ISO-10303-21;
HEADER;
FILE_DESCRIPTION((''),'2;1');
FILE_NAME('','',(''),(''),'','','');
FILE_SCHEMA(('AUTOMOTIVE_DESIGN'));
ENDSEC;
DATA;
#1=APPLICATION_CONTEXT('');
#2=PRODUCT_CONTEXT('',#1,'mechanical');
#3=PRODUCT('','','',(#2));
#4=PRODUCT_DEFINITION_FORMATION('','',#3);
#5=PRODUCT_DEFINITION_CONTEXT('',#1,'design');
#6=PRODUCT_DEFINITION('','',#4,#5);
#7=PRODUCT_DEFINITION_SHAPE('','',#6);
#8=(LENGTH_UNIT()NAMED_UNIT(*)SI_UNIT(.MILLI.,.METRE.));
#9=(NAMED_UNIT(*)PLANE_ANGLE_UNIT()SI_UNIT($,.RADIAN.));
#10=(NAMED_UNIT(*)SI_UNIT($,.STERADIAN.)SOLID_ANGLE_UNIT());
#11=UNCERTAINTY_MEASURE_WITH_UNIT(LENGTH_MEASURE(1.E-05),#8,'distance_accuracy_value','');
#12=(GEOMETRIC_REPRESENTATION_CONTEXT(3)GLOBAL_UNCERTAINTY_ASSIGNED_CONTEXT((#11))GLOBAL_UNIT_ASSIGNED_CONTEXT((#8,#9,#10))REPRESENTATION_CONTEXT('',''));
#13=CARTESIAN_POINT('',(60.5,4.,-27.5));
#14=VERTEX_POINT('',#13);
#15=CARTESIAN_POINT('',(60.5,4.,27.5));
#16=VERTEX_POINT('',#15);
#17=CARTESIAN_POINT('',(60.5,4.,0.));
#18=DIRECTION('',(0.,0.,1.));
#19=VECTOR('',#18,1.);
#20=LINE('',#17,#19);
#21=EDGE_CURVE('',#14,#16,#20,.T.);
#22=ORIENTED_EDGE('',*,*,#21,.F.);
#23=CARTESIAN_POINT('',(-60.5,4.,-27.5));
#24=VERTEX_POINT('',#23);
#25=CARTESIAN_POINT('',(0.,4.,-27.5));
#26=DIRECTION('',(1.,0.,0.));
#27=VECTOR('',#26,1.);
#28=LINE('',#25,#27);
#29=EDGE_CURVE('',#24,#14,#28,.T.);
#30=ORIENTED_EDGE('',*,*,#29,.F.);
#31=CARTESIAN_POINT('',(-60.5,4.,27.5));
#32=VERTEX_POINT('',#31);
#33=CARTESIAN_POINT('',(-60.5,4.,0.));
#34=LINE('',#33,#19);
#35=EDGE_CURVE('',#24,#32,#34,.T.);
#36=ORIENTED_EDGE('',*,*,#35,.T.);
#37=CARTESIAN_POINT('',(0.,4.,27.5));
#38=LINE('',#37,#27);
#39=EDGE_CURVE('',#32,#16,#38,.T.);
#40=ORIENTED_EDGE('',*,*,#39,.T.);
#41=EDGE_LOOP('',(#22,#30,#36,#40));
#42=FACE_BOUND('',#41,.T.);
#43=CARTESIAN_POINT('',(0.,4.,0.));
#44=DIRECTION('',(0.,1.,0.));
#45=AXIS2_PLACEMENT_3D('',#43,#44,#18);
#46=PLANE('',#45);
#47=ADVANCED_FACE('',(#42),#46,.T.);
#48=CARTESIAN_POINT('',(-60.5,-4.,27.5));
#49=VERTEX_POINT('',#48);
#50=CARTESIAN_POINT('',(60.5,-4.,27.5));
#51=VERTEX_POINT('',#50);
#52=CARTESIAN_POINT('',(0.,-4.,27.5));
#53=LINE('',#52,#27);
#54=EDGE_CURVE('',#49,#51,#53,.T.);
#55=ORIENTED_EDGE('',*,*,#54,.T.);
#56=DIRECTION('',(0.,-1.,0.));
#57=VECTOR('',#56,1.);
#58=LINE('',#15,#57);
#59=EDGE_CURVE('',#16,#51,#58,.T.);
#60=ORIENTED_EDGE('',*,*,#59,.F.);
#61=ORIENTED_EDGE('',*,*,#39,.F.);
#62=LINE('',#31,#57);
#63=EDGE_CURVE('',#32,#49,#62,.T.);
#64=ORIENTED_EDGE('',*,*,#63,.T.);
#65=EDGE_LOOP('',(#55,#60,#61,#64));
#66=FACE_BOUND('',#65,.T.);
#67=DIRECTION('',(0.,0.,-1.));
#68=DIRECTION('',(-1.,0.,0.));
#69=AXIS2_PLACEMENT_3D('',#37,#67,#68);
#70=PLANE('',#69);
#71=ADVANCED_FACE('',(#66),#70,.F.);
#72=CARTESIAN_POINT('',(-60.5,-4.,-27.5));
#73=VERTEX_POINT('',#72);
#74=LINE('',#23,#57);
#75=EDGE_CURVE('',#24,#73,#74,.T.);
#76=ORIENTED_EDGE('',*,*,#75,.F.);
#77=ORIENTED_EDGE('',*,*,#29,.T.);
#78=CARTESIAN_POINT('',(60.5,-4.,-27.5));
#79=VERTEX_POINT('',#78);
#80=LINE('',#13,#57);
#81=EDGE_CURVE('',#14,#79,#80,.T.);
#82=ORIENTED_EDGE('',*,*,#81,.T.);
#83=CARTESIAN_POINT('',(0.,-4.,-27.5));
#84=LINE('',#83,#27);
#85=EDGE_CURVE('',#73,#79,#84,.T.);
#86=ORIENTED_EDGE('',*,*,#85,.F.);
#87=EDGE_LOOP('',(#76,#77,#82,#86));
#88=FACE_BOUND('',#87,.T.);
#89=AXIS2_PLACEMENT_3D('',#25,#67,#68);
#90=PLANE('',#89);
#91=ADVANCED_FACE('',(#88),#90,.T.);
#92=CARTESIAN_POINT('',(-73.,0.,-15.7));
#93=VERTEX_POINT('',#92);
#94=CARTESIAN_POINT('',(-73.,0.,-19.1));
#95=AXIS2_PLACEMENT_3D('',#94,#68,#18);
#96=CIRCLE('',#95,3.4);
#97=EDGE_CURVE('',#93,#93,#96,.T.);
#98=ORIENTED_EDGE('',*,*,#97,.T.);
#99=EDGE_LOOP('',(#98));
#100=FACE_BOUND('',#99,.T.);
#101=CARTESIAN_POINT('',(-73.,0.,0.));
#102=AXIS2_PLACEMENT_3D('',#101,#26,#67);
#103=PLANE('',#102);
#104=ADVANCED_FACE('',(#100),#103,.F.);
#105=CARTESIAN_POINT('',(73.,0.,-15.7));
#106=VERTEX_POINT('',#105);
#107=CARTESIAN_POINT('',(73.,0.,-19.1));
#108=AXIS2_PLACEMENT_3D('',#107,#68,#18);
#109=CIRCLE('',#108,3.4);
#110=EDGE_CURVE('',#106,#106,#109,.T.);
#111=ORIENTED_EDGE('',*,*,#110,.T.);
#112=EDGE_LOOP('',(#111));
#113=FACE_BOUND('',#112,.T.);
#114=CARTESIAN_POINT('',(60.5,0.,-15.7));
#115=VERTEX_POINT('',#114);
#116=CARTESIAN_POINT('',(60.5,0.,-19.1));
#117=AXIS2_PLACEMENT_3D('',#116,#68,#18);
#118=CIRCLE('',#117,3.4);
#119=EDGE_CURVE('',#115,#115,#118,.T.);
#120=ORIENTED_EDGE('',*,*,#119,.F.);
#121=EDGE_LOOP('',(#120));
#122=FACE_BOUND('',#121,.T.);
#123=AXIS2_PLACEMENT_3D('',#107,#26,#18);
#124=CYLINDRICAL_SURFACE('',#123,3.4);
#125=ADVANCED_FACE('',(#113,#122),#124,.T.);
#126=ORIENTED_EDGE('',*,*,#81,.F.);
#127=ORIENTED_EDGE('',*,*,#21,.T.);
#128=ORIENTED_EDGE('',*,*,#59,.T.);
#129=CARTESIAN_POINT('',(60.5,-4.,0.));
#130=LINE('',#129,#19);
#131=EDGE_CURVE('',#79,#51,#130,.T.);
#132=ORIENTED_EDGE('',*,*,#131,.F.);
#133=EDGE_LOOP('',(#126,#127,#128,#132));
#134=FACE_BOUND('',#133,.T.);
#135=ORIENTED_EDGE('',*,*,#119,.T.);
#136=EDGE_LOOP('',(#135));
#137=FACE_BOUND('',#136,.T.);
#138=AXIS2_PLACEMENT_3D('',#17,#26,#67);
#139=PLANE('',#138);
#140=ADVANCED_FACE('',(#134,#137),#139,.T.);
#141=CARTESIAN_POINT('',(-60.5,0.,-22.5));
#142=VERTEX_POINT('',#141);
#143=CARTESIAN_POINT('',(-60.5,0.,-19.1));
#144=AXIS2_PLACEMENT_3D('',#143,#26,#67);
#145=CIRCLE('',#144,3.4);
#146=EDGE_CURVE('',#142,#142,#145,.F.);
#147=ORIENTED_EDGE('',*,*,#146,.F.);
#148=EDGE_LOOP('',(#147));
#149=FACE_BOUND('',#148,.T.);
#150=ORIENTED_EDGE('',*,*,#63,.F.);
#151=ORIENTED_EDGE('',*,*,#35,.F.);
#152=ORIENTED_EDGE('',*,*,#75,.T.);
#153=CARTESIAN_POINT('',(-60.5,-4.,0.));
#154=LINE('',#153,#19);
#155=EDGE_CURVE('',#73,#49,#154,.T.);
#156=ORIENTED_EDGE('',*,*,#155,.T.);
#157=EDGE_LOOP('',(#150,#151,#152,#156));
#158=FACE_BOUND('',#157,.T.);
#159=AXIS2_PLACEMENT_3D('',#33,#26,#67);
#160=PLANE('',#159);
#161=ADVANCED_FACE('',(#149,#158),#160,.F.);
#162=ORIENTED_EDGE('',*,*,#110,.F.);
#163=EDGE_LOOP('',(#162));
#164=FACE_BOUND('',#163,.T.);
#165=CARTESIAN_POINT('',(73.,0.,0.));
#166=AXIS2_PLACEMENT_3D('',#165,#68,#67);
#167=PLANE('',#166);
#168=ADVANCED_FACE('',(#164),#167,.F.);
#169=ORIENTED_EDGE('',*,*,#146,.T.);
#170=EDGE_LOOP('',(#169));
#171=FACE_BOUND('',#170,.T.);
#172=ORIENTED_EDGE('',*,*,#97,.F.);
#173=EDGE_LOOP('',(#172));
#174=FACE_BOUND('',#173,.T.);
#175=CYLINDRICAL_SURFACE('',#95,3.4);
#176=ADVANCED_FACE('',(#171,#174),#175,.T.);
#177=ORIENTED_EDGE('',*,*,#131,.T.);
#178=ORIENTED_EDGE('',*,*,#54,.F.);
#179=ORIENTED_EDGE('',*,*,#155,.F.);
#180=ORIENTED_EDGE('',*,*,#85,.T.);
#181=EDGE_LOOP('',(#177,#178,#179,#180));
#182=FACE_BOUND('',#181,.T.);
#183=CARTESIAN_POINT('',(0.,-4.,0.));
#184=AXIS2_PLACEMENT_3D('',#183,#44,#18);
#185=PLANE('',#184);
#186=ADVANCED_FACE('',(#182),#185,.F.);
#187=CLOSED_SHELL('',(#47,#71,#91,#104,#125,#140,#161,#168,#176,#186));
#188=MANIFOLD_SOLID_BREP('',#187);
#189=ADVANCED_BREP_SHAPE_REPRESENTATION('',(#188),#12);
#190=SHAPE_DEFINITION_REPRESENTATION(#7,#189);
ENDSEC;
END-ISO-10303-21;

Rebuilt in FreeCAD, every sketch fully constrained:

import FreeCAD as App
import Part
import Sketcher

V = App.Vector
Q = App.Units.Quantity

doc = App.newDocument("Part")
body = doc.addObject("PartDesign::Body", "Body")

# Sketch on XZ plane
sketch1 = body.newObject("Sketcher::SketchObject", "Sketch")
sketch1.AttachmentSupport = (doc.getObject("XZ_Plane"), [""])
sketch1.MapMode = "FlatFace"
sketch1.addGeometry([
    Part.LineSegment(V(-60.5, -27.5, 0), V(-60.5, 27.5, 0)),
    Part.LineSegment(V(-60.5, 27.5, 0), V(60.5, 27.5, 0)),
    Part.LineSegment(V(60.5, 27.5, 0), V(60.5, -27.5, 0)),
    Part.LineSegment(V(60.5, -27.5, 0), V(-60.5, -27.5, 0)),
], False)
sketch1.addConstraint([
    Sketcher.Constraint("Coincident", 0, 2, 1, 1),
    Sketcher.Constraint("Coincident", 1, 2, 2, 1),
    Sketcher.Constraint("Coincident", 2, 2, 3, 1),
    Sketcher.Constraint("Coincident", 3, 2, 0, 1),
    Sketcher.Constraint("Vertical", 0),
    Sketcher.Constraint("Horizontal", 1),
    Sketcher.Constraint("Vertical", 2),
    Sketcher.Constraint("Horizontal", 3),
    Sketcher.Constraint("Symmetric", 0, 2, 2, 2, -1, 1),
    Sketcher.Constraint("DistanceX", 1, 1, 1, 2, Q("121 mm")),
    Sketcher.Constraint("DistanceY", 0, 1, 0, 2, Q("55 mm")),
])
pad1 = body.newObject("PartDesign::Pad", "Pad")
pad1.Profile = sketch1
pad1.Length = 8
pad1.Midplane = True

# Sketch on XZ plane
sketch2 = body.newObject("Sketcher::SketchObject", "Sketch001")
sketch2.AttachmentSupport = (doc.getObject("XZ_Plane"), [""])
sketch2.MapMode = "FlatFace"
sketch2.addGeometry([
    Part.LineSegment(V(-73, -22.5, 0), V(-73, -19.1, 0)),
    Part.LineSegment(V(-73, -19.1, 0), V(-60.5, -19.1, 0)),
    Part.LineSegment(V(-60.5, -19.1, 0), V(-60.5, -22.5, 0)),
    Part.LineSegment(V(-60.5, -22.5, 0), V(-73, -22.5, 0)),
], False)
sketch2.addGeometry(Part.LineSegment(V(-73, -19.1, 0), V(-60.5, -19.1, 0)), True)  # axis
sketch2.addConstraint([
    Sketcher.Constraint("Coincident", 0, 2, 1, 1),
    Sketcher.Constraint("Coincident", 1, 2, 2, 1),
    Sketcher.Constraint("Coincident", 2, 2, 3, 1),
    Sketcher.Constraint("Coincident", 3, 2, 0, 1),
    Sketcher.Constraint("Vertical", 0),
    Sketcher.Constraint("Horizontal", 1),
    Sketcher.Constraint("Vertical", 2),
    Sketcher.Constraint("Horizontal", 3),
    Sketcher.Constraint("Horizontal", 4),
    Sketcher.Constraint("Coincident", 4, 1, 0, 2),
    Sketcher.Constraint("Vertical", 2, 2, 4, 2),
    Sketcher.Constraint("DistanceX", 1, 1, 1, 2, Q("12.5 mm")),
    Sketcher.Constraint("DistanceY", 0, 1, 0, 2, Q("3.4 mm")),
    Sketcher.Constraint("DistanceX", 0, 2, -1, 1, Q("73 mm")),
    Sketcher.Constraint("DistanceY", 0, 2, -1, 1, Q("19.1 mm")),
])
revolution = body.newObject("PartDesign::Revolution", "Revolution")
revolution.Profile = sketch2
revolution.ReferenceAxis = (sketch2, ["Axis0"])
revolution.Angle = 360
doc.recompute()

mirrored = body.newObject("PartDesign::Mirrored", "Mirrored")
mirrored.Originals = [revolution]
mirrored.MirrorPlane = (doc.getObject("YZ_Plane"), [""])
body.Tip = mirrored

doc.recompute()
